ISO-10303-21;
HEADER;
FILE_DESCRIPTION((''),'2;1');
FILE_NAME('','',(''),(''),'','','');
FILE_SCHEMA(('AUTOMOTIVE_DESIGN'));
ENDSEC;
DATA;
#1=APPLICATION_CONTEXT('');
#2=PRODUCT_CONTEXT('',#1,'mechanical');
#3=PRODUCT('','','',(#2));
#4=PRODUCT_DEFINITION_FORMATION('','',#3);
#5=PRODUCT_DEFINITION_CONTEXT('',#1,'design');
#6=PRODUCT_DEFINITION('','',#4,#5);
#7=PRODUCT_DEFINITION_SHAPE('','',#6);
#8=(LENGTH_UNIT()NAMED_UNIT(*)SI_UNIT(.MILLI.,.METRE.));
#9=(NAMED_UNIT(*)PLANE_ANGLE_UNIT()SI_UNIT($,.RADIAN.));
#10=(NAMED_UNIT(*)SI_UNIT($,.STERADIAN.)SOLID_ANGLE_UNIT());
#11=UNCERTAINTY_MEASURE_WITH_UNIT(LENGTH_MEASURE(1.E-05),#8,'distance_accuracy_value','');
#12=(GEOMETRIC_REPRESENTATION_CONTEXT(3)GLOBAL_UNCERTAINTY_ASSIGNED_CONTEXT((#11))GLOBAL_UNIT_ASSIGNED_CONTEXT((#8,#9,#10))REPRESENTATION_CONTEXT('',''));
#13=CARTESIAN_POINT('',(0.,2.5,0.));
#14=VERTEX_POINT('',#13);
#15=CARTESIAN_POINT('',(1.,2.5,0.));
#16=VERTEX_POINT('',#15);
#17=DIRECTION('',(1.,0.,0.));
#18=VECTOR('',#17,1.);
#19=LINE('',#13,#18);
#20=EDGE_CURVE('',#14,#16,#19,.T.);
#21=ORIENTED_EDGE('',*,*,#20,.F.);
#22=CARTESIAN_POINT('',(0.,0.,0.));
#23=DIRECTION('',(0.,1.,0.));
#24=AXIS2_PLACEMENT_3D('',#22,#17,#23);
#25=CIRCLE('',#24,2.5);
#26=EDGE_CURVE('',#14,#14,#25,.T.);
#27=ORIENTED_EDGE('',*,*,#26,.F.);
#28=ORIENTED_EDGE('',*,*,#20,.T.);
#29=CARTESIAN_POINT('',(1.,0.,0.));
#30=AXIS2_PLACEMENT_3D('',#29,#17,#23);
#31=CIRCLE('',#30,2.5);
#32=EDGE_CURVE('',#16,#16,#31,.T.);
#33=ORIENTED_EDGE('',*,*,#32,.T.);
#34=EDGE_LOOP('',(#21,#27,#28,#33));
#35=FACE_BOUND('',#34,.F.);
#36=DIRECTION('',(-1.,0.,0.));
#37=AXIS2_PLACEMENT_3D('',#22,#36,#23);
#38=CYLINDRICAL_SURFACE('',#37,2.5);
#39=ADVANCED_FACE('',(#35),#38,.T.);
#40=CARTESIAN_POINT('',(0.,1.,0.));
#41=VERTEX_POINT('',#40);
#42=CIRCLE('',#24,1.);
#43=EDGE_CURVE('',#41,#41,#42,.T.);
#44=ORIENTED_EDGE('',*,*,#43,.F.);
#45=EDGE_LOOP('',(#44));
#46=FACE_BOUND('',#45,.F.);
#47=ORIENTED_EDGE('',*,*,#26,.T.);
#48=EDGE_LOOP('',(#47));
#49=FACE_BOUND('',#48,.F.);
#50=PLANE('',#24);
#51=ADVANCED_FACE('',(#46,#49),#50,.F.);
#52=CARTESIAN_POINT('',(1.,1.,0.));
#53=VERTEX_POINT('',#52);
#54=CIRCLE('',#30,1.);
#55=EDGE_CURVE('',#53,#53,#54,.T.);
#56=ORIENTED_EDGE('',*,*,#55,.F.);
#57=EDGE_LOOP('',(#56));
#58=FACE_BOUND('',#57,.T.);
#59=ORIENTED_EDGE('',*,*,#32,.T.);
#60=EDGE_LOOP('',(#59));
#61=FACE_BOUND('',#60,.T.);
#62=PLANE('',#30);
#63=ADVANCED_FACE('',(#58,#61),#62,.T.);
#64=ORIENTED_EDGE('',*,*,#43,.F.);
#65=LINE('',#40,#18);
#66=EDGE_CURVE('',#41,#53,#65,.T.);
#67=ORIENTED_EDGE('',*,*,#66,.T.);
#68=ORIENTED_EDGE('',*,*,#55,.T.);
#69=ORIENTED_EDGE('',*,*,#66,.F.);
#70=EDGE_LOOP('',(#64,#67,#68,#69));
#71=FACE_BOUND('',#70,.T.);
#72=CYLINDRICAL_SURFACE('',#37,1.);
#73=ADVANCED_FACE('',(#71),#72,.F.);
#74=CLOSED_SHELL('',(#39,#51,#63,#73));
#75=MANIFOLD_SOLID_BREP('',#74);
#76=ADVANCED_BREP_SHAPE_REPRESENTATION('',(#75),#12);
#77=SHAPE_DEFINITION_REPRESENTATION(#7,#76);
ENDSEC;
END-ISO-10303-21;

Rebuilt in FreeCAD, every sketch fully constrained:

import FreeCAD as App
import Part
import Sketcher
from FreeCAD import Vector
Q = App.Units.Quantity

doc = App.newDocument("Part")
body = doc.addObject("PartDesign::Body", "Body")

# Sketch on YZ plane
sketch1 = body.newObject("Sketcher::SketchObject", "Sketch")
sketch1.AttachmentSupport = (doc.getObject("YZ_Plane"), [""])
sketch1.MapMode = "FlatFace"
sketch1.addGeometry(Part.Circle(Vector(0, 0, 0), Vector(0, 0, 1), 2.5), False)
sketch1.addGeometry(Part.Circle(Vector(0, 0, 0), Vector(0, 0, 1), 1), False)
sketch1.addConstraint(Sketcher.Constraint("Coincident", 0, 3, -1, 1))
sketch1.addConstraint(Sketcher.Constraint("Coincident", 1, 3, -1, 1))
sketch1.addConstraint(Sketcher.Constraint("Diameter", 0, Q("5 mm")))
sketch1.addConstraint(Sketcher.Constraint("Diameter", 1, Q("2 mm")))
pad1 = body.newObject("PartDesign::Pad", "Pad")
pad1.Profile = sketch1
pad1.Length = 1

doc.recompute()
